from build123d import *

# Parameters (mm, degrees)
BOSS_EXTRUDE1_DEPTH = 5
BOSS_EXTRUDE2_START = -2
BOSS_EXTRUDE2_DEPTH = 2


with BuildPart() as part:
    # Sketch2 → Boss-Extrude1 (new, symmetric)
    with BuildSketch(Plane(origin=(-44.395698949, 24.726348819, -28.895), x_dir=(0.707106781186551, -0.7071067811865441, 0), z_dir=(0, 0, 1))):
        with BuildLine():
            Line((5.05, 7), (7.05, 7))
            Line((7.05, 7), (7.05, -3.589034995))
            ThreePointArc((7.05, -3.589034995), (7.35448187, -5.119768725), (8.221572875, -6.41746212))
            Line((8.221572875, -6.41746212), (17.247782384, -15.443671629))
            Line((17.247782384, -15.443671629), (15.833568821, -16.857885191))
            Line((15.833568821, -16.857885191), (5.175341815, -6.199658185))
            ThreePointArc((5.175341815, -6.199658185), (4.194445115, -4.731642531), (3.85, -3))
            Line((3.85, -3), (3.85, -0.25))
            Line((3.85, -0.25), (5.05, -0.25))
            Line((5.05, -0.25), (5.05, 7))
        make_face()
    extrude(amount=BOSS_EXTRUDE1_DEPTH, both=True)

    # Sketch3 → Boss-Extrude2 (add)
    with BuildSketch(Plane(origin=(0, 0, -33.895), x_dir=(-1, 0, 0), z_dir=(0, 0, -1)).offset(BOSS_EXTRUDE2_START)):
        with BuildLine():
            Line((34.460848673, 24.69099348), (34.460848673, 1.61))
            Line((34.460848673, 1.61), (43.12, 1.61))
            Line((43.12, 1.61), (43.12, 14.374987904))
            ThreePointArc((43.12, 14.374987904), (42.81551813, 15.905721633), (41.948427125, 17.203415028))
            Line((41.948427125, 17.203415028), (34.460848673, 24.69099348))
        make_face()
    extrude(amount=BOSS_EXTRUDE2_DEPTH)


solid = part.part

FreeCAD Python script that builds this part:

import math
import FreeCAD as App
import Part
import Sketcher

V = App.Vector
Q = App.Units.Quantity

doc = App.newDocument("Part")
body = doc.addObject("PartDesign::Body", "Body")

sketch1 = body.newObject("Sketcher::SketchObject", "Sketch")
sketch1.AttachmentSupport = (doc.getObject("XY_Plane"), [""])
sketch1.MapMode = "FlatFace"
sketch1.AttachmentOffset = App.Placement(V(0, 0, -28.895), App.Rotation())
sketch1.addGeometry([
    Part.LineSegment(V(-34.460849, 24.690993, 0), V(-35.875062, 26.105207, 0)),
    Part.LineSegment(V(-35.875062, 26.105207, 0), V(-41.001586, 20.978683, 0)),
    Part.LineSegment(V(-41.001586, 20.978683, 0), V(-41.850115, 21.827211, 0)),
    Part.LineSegment(V(-41.850115, 21.827211, 0), V(-43.794658, 19.882667, 0)),
    Part.ArcOfCircle(Part.Circle(V(-40.595, 16.683009, 0), V(0, 0, 1), 4.525), math.radians(135), math.radians(180)),
    Part.LineSegment(V(-45.12, 16.683009, 0), V(-45.12, 1.61, 0)),
    Part.LineSegment(V(-45.12, 1.61, 0), V(-43.12, 1.61, 0)),
    Part.LineSegment(V(-43.12, 1.61, 0), V(-43.12, 14.374988, 0)),
    Part.ArcOfCircle(Part.Circle(V(-39.12, 14.374988, 0), V(0, 0, 1), 4), math.radians(135), math.radians(180)),
    Part.LineSegment(V(-41.948427, 17.203415, 0), V(-34.460849, 24.690993, 0)),
], False)
sketch1.addConstraint([
    Sketcher.Constraint("Coincident", 0, 2, 1, 1),
    Sketcher.Constraint("Coincident", 1, 2, 2, 1),
    Sketcher.Constraint("Coincident", 2, 2, 3, 1),
    Sketcher.Constraint("Tangent", 3, 2, 4, 1),
    Sketcher.Constraint("Tangent", 4, 2, 5, 1),
    Sketcher.Constraint("Coincident", 5, 2, 6, 1),
    Sketcher.Constraint("Coincident", 6, 2, 7, 1),
    Sketcher.Constraint("Tangent", 7, 2, 8, 2),
    Sketcher.Constraint("Tangent", 8, 1, 9, 1),
    Sketcher.Constraint("Coincident", 9, 2, 0, 1),
    Sketcher.Constraint("Vertical", 5),
    Sketcher.Constraint("Horizontal", 6),
    Sketcher.Constraint("Vertical", 7),
    Sketcher.Constraint("Perpendicular", 0, 1),
    Sketcher.Constraint("Perpendicular", 1, 2),
    Sketcher.Constraint("Perpendicular", 2, 3),
    Sketcher.Constraint("Parallel", 3, 9),
    Sketcher.Constraint("Radius", 8, Q("4 mm")),
    Sketcher.Constraint("DistanceX", 6, 1, 6, 2, Q("2 mm")),
    Sketcher.Constraint("Angle", 0, Q("135 deg")),
    Sketcher.Constraint("Distance", 0, Q("2 mm")),
    Sketcher.Constraint("Radius", 4, Q("4.525 mm")),
    Sketcher.Constraint("Distance", 2, Q("1.2 mm")),
    Sketcher.Constraint("Distance", 1, Q("7.25 mm")),
    Sketcher.Constraint("Distance", 3, Q("2.75 mm")),
    Sketcher.Constraint("DistanceX", 8, 3, -1, 1, Q("39.12 mm")),
    Sketcher.Constraint("DistanceY", -1, 1, 5, 2, Q("1.61 mm")),
    Sketcher.Constraint("DistanceY", 5, 2, 5, 1, Q("15.073009 mm")),
])
pad1 = body.newObject("PartDesign::Pad", "Pad")
pad1.Profile = sketch1
pad1.Length = 10
pad1.Midplane = True

sketch2 = body.newObject("Sketcher::SketchObject", "Sketch001")
sketch2.AttachmentSupport = (doc.getObject("XY_Plane"), [""])
sketch2.MapMode = "FlatFace"
sketch2.AttachmentOffset = App.Placement(V(0, 0, -31.895), App.Rotation())
sketch2.addGeometry([
    Part.LineSegment(V(-34.460849, 24.690993, 0), V(-34.460849, 1.61, 0)),
    Part.LineSegment(V(-34.460849, 1.61, 0), V(-43.12, 1.61, 0)),
    Part.LineSegment(V(-43.12, 1.61, 0), V(-43.12, 14.374988, 0)),
    Part.ArcOfCircle(Part.Circle(V(-39.12, 14.374988, 0), V(0, 0, 1), 4), math.radians(135), math.radians(180)),
    Part.LineSegment(V(-41.948427, 17.203415, 0), V(-34.460849, 24.690993, 0)),
], False)
sketch2.addConstraint([
    Sketcher.Constraint("Coincident", 0, 2, 1, 1),
    Sketcher.Constraint("Coincident", 1, 2, 2, 1),
    Sketcher.Constraint("Tangent", 2, 2, 3, 2),
    Sketcher.Constraint("Tangent", 3, 1, 4, 1),
    Sketcher.Constraint("Coincident", 4, 2, 0, 1),
    Sketcher.Constraint("Vertical", 0),
    Sketcher.Constraint("Horizontal", 1),
    Sketcher.Constraint("Vertical", 2),
    Sketcher.Constraint("Radius", 3, Q("4 mm")),
    Sketcher.Constraint("Angle", 4, Q("45 deg")),
    Sketcher.Constraint("DistanceX", 3, 3, -1, 1, Q("39.12 mm")),
    Sketcher.Constraint("DistanceY", -1, 1, 0, 2, Q("1.61 mm")),
    Sketcher.Constraint("DistanceX", 1, 2, 1, 1, Q("8.659151 mm")),
    Sketcher.Constraint("DistanceY", 0, 2, 0, 1, Q("23.080993 mm")),
])
pad2 = body.newObject("PartDesign::Pad", "Pad001")
pad2.Profile = sketch2
pad2.Length = 2
pad2.Reversed = True

doc.recompute()
